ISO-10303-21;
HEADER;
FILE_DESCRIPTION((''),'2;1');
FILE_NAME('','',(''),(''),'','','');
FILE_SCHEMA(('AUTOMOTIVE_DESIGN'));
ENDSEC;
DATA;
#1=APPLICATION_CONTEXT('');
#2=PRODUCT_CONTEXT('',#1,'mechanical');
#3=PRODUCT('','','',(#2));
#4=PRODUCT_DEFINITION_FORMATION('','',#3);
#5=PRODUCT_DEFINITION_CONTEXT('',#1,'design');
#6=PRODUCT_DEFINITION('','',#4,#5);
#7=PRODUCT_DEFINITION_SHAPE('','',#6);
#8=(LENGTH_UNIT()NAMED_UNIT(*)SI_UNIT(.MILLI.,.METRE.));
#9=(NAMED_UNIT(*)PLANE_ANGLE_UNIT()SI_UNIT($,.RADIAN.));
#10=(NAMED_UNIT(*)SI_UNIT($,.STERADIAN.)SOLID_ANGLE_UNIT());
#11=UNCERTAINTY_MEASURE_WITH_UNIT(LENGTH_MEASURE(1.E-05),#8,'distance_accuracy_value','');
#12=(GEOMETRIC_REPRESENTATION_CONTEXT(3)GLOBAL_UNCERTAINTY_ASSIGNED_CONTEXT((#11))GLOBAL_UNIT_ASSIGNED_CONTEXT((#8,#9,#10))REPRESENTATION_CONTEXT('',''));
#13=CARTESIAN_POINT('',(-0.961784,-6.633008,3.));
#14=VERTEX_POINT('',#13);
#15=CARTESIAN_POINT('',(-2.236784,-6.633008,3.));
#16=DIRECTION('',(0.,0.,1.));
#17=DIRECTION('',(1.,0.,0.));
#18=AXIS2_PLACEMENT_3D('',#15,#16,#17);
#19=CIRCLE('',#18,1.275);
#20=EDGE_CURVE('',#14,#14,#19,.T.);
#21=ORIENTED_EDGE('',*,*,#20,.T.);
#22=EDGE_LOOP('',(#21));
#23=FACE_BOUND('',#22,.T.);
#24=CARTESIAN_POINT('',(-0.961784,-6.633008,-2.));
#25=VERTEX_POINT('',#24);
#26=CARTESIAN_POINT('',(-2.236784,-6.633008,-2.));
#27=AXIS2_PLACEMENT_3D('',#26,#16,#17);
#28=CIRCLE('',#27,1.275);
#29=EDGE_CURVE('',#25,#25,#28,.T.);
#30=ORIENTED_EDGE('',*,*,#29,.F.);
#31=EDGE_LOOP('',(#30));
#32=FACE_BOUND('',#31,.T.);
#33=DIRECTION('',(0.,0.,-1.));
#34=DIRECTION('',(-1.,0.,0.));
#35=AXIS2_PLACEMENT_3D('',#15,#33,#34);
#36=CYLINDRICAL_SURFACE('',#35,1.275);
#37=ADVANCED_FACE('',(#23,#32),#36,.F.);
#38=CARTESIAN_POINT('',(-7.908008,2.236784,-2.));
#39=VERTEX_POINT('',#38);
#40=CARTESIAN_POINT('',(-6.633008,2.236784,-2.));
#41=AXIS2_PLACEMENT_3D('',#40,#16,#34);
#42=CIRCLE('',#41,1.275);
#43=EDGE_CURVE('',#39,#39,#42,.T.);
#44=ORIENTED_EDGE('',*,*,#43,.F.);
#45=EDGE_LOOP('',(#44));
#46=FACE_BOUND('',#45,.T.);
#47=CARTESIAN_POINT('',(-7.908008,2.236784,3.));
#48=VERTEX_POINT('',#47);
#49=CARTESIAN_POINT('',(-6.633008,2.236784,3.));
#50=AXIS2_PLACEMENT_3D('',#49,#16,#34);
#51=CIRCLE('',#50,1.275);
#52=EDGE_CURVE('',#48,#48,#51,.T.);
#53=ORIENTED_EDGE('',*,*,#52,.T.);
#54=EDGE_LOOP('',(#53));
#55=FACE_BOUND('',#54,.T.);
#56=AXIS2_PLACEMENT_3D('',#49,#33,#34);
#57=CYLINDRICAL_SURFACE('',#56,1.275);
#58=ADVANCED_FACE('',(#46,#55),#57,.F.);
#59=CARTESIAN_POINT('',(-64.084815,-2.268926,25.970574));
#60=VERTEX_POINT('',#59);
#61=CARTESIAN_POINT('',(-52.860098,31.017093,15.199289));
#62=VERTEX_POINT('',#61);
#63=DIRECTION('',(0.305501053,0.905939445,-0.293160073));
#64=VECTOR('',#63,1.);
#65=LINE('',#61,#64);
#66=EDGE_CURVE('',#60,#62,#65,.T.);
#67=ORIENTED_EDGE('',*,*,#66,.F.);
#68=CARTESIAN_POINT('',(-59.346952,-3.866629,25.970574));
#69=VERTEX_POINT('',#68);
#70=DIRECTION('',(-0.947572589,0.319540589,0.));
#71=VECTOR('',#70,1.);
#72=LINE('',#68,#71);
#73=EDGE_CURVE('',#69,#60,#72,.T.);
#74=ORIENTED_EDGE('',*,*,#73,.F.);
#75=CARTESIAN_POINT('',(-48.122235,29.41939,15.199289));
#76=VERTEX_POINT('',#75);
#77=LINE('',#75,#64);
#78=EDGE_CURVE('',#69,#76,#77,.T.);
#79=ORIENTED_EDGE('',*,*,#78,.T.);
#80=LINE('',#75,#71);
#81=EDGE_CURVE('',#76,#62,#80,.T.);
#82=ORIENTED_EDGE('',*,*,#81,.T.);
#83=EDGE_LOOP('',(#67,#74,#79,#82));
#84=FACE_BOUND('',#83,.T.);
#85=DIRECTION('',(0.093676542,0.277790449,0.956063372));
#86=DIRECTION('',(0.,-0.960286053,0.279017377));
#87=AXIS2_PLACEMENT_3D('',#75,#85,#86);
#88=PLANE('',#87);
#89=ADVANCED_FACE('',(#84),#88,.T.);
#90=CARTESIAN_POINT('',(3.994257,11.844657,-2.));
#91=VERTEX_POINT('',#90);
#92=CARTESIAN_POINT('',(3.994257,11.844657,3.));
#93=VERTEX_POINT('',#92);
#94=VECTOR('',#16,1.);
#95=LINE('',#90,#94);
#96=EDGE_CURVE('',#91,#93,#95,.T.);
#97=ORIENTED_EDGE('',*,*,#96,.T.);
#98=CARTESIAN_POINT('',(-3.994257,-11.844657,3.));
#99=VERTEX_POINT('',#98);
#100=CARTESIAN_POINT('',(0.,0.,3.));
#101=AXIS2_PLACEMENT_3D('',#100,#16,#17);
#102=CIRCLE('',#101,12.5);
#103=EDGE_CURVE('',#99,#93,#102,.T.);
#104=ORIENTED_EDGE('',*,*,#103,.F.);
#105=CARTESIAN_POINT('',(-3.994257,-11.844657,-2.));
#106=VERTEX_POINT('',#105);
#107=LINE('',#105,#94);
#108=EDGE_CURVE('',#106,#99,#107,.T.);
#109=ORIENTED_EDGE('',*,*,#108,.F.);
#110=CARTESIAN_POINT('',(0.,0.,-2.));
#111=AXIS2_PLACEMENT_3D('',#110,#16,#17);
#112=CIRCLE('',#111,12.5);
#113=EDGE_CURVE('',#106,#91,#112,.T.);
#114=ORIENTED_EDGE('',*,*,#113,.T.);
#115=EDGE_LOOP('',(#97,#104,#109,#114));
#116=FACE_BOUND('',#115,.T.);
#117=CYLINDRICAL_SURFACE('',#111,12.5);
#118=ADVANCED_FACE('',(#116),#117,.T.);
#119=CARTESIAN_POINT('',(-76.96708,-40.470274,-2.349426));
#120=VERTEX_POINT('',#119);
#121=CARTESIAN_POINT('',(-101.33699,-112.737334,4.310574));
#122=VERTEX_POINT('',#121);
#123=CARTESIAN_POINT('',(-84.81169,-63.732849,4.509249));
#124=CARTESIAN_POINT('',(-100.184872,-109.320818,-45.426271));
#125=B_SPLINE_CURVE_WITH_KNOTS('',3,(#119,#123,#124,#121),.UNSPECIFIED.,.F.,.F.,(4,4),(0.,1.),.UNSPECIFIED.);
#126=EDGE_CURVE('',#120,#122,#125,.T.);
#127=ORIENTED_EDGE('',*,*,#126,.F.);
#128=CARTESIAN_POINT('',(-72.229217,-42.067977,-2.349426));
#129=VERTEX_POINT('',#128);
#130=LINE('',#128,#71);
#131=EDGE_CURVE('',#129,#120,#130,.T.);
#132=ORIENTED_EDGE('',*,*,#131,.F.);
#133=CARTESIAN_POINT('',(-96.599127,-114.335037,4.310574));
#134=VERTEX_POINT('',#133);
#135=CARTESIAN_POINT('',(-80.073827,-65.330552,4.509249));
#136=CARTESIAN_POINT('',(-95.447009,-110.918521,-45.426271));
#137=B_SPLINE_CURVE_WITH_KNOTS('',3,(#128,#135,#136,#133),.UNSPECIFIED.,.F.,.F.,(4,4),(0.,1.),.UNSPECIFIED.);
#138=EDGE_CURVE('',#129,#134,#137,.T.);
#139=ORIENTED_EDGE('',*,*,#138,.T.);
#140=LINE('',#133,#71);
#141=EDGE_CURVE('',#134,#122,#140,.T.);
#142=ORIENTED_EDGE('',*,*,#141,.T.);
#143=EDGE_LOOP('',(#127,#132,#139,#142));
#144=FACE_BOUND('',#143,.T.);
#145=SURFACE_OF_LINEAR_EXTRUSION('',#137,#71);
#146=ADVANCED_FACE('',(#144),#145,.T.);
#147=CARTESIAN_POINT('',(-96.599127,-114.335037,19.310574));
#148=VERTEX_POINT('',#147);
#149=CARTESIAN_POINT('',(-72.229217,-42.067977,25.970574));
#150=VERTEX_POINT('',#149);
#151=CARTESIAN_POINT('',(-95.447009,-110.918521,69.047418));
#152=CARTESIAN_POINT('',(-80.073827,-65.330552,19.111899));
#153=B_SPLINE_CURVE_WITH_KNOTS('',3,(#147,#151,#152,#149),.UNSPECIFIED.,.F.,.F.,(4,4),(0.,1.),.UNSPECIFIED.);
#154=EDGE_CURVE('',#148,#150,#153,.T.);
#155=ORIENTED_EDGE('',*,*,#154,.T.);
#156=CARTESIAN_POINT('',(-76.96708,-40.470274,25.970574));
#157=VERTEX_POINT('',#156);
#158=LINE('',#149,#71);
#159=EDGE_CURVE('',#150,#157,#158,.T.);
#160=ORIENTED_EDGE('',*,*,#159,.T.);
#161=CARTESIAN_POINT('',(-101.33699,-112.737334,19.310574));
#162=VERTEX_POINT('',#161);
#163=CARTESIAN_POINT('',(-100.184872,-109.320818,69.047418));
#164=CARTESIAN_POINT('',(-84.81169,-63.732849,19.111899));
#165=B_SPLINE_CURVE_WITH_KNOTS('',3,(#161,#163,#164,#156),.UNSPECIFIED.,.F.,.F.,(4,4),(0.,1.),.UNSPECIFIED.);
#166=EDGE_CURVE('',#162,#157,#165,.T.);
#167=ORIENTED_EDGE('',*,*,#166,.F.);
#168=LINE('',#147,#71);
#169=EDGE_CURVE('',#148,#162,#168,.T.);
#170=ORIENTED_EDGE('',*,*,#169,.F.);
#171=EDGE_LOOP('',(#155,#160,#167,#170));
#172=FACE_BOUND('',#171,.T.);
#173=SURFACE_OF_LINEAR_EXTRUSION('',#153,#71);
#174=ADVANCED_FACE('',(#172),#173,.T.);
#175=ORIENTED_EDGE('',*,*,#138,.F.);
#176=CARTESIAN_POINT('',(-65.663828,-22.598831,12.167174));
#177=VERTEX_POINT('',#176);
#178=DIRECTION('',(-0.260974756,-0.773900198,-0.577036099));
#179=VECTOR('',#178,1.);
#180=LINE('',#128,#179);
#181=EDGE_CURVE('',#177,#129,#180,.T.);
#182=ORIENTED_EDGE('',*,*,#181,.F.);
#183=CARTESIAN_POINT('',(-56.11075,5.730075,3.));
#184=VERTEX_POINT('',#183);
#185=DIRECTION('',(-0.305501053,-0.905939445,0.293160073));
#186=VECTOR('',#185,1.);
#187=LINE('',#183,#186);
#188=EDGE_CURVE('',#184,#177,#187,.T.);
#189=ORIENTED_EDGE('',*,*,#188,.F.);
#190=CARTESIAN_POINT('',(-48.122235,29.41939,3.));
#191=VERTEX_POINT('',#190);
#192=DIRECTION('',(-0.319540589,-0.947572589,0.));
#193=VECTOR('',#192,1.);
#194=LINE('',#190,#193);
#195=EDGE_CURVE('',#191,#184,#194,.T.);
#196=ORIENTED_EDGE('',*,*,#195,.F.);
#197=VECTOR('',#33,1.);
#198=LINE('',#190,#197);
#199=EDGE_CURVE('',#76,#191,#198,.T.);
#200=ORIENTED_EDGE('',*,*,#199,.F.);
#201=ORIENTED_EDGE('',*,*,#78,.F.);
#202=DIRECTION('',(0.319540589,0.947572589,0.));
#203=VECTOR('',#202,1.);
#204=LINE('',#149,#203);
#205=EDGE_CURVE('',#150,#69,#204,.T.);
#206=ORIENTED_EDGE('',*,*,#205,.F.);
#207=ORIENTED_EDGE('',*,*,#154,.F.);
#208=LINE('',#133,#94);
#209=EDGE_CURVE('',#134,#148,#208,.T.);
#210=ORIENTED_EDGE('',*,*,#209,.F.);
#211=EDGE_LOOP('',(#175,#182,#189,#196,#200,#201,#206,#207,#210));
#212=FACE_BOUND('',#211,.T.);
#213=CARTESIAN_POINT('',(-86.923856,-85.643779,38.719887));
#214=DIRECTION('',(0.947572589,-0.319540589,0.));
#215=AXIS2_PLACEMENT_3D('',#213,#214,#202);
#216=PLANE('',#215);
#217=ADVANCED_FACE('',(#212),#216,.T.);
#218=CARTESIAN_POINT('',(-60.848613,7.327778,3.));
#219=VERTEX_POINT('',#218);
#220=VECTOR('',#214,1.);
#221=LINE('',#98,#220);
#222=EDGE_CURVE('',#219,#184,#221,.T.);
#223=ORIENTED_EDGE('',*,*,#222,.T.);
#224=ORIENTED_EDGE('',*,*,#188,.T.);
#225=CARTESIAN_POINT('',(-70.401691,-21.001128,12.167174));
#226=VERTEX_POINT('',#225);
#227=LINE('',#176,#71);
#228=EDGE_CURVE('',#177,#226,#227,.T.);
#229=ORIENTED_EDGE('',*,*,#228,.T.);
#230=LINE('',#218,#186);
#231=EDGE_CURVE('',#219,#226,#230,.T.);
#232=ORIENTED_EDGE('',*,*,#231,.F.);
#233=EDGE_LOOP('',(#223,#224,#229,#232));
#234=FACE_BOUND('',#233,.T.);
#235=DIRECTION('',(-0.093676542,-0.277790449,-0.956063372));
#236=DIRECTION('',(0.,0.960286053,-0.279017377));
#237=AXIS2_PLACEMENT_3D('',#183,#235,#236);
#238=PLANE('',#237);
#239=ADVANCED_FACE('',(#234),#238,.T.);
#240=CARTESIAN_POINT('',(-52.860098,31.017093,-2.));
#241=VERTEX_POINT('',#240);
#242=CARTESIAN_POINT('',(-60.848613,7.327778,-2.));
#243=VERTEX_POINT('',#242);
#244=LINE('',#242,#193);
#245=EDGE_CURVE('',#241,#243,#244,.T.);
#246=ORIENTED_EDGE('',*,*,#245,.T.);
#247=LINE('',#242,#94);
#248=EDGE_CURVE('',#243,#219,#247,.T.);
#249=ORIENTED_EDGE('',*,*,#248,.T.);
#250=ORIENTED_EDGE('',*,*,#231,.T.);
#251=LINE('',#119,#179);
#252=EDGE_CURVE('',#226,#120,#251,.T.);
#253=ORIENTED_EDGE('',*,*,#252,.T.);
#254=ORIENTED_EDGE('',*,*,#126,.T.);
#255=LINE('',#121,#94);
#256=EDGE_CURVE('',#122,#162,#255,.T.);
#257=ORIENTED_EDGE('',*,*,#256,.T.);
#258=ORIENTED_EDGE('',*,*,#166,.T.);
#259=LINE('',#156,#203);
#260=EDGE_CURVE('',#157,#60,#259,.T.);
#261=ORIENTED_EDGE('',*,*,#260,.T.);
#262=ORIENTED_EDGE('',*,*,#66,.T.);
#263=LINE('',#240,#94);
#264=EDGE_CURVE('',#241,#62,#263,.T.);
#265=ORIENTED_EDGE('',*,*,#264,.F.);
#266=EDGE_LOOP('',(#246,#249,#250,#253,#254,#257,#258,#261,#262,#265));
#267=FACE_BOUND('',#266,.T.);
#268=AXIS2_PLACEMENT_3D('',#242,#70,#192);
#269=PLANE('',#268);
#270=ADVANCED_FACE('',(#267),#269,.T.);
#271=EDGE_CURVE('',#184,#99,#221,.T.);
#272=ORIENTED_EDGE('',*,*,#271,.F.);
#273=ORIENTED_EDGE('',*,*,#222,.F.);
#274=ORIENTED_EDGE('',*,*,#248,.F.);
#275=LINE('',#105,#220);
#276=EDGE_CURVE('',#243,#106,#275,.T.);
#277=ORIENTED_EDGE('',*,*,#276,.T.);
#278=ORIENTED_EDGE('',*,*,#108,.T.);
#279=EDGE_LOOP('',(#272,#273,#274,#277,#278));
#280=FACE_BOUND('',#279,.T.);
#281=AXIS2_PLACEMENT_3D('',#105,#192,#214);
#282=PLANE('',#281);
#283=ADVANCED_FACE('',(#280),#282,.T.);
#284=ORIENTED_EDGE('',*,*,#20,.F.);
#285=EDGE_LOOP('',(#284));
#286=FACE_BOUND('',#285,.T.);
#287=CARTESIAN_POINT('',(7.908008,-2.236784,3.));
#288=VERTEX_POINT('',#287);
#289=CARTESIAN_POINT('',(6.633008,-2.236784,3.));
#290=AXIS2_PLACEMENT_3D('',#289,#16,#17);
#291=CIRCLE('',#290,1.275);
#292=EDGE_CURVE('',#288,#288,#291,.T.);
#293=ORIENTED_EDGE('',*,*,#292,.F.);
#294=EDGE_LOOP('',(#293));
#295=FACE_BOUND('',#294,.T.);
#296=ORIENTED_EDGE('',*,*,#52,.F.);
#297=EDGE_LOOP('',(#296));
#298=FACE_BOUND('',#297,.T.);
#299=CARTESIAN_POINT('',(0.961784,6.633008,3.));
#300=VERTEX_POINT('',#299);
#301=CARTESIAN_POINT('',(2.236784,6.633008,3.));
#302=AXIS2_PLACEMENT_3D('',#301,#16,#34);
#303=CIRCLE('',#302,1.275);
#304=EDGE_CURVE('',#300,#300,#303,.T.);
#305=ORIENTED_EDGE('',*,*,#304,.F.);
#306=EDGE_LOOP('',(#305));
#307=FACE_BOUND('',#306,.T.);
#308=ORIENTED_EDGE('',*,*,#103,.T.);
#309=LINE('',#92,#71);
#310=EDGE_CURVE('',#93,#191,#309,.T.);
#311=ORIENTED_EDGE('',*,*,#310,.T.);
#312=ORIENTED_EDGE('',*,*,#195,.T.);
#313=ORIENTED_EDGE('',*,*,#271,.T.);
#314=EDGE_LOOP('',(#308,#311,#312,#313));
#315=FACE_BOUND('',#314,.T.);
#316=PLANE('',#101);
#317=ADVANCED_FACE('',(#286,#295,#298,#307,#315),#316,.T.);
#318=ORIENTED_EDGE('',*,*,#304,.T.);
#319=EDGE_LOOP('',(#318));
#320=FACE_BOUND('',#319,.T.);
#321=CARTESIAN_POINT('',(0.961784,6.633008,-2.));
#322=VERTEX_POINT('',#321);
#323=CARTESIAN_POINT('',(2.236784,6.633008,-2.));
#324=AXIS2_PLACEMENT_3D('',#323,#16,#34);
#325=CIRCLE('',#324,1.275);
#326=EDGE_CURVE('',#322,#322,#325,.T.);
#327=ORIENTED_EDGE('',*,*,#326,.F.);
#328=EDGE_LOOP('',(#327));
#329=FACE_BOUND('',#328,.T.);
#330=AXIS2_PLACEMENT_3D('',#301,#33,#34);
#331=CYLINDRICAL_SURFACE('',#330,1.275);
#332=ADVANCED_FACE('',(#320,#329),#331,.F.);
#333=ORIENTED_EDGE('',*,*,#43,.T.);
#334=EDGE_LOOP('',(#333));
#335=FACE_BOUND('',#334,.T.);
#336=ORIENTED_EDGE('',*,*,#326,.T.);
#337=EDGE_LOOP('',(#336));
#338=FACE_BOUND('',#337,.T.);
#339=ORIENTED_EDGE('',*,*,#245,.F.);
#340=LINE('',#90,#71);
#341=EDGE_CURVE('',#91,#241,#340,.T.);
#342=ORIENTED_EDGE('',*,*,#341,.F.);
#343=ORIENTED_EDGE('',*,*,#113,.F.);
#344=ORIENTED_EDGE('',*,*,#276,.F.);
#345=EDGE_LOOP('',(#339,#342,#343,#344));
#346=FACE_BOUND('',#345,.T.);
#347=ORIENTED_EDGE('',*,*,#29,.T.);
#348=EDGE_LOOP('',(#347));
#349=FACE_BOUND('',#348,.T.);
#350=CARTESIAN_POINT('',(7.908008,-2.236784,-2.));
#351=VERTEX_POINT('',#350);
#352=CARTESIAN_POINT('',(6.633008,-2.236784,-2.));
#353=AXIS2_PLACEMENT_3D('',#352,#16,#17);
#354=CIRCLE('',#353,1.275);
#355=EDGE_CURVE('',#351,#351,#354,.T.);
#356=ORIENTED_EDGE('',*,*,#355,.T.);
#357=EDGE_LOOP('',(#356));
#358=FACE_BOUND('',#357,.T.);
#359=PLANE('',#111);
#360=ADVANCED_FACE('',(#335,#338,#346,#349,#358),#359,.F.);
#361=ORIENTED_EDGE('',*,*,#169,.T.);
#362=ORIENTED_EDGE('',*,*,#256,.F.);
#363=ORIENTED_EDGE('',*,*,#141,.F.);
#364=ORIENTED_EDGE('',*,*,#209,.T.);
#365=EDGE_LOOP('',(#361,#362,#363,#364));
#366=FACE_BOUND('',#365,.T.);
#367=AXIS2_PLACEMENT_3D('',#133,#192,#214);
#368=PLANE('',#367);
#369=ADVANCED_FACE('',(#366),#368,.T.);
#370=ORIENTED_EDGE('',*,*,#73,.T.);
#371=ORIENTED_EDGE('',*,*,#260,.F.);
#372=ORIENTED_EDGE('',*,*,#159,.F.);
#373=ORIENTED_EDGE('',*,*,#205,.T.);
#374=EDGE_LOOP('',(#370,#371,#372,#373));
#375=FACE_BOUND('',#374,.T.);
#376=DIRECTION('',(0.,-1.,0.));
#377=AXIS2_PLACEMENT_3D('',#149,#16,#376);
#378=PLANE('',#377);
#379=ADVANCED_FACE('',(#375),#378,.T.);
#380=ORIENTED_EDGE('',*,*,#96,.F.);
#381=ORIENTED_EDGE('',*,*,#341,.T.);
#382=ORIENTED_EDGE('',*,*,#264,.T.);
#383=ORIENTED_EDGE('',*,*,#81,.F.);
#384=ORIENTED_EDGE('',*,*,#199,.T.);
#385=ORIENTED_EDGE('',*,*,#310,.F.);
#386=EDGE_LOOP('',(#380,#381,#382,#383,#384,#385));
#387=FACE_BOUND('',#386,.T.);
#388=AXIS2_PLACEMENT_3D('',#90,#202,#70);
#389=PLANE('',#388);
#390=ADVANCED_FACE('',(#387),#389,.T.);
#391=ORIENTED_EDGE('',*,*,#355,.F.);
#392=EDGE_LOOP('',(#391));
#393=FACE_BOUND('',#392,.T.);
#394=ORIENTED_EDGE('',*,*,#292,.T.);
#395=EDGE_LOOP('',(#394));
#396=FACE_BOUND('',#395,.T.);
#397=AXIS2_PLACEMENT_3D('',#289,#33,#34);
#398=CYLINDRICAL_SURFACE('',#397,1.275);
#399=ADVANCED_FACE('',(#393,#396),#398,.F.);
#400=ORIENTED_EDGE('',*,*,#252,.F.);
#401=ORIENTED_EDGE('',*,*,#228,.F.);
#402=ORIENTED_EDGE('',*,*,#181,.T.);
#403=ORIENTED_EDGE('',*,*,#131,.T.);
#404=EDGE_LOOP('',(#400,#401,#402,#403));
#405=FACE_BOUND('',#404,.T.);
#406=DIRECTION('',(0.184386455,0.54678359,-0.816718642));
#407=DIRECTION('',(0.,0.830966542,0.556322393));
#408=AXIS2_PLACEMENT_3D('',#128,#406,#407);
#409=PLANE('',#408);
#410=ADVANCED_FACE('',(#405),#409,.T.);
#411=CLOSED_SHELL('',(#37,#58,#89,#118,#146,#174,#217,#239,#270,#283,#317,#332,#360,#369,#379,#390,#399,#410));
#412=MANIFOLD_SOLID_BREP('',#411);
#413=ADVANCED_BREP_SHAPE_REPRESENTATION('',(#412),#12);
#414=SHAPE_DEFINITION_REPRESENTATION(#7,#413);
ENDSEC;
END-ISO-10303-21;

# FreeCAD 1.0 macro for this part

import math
import FreeCAD as App
import Part
import Sketcher

V = App.Vector
Q = App.Units.Quantity

doc = App.newDocument("Part")
body = doc.addObject("PartDesign::Body", "Body")

# Sketch on XY plane
sketch1 = body.newObject("Sketcher::SketchObject", "Sketch")
sketch1.AttachmentSupport = (doc.getObject("XY_Plane"), [""])
sketch1.MapMode = "FlatFace"
sketch1.addGeometry([
    Part.Circle(V(0, 0, 0), V(0, 0, 1), 10),  # 0
    Part.Circle(V(-2.236784, -6.633008, 0), V(0, 0, 1), 1.275),  # 1
    Part.Circle(V(6.633008, -2.236784, 0), V(0, 0, 1), 1.275),  # 2
    Part.Circle(V(-6.633008, 2.236784, 0), V(0, 0, 1), 1.275),  # 3
    Part.Circle(V(2.236784, 6.633008, 0), V(0, 0, 1), 1.275),  # 4
], False)
sketch1.addConstraint([
    Sketcher.Constraint("Coincident", 0, 3, -1, 1),
    Sketcher.Constraint("Equal", 1, 2),
    Sketcher.Constraint("Equal", 2, 3),
    Sketcher.Constraint("Equal", 3, 4),
    Sketcher.Constraint("Symmetric", 2, 3, 3, 3, -1, 1),
    Sketcher.Constraint("Symmetric", 1, 3, 4, 3, -1, 1),
    Sketcher.Constraint("Diameter", 0, Q("20 mm")),
    Sketcher.Constraint("Diameter", 1, Q("2.55 mm")),
    Sketcher.Constraint("DistanceY", 1, 3, -1, 1, Q("6.633008 mm")),
    Sketcher.Constraint("DistanceX", -1, 1, 2, 3, Q("6.633008 mm")),
    Sketcher.Constraint("DistanceY", 2, 3, 3, 3, Q("4.473568 mm")),
    Sketcher.Constraint("DistanceX", 1, 3, 4, 3, Q("4.473568 mm")),
])
pad1 = body.newObject("PartDesign::Pad", "Pad")
pad1.Profile = sketch1
pad1.Length = 3

# Sketch on XY plane
sketch2 = body.newObject("Sketcher::SketchObject", "Sketch001")
sketch2.AttachmentSupport = (doc.getObject("XY_Plane"), [""])
sketch2.MapMode = "FlatFace"
sketch2.AttachmentOffset = App.Placement(V(0, 0, 3), App.Rotation())
sketch2.addGeometry([
    Part.LineSegment(V(-60.848613, 7.327778, 0), V(-3.994257, -11.844657, 0)),  # 0
    Part.ArcOfCircle(Part.Circle(V(0, 0, 0), V(0, 0, 1), 12.5), math.radians(-108.635144), math.radians(71.364856)),  # 1
    Part.LineSegment(V(3.994257, 11.844657, 0), V(-52.860098, 31.017093, 0)),  # 2
    Part.LineSegment(V(-52.860098, 31.017093, 0), V(-60.848613, 7.327778, 0)),  # 3
    Part.Circle(V(6.633008, -2.236784, 0), V(0, 0, 1), 1.275),  # 4
    Part.Circle(V(-2.236784, -6.633008, 0), V(0, 0, 1), 1.275),  # 5
    Part.Circle(V(2.236784, 6.633008, 0), V(0, 0, 1), 1.275),  # 6
    Part.Circle(V(-6.633008, 2.236784, 0), V(0, 0, 1), 1.275),  # 7
], False)
sketch2.addConstraint([
    Sketcher.Constraint("Tangent", 0, 2, 1, 1),
    Sketcher.Constraint("Tangent", 1, 2, 2, 1),
    Sketcher.Constraint("Coincident", 2, 2, 3, 1),
    Sketcher.Constraint("Coincident", 3, 2, 0, 1),
    Sketcher.Constraint("Coincident", 1, 3, -1, 1),
    Sketcher.Constraint("Equal", 4, 5),
    Sketcher.Constraint("Equal", 5, 6),
    Sketcher.Constraint("Equal", 6, 7),
    Sketcher.Constraint("Symmetric", 5, 3, 6, 3, -1, 1),
    Sketcher.Constraint("Symmetric", 4, 3, 7, 3, -1, 1),
    Sketcher.Constraint("Parallel", 0, 2),
    Sketcher.Constraint("Perpendicular", 2, 3),
    Sketcher.Constraint("Radius", 1, Q("12.5 mm")),
    Sketcher.Constraint("Diameter", 4, Q("2.55 mm")),
    Sketcher.Constraint("Distance", 0, Q("60 mm")),
    Sketcher.Constraint("DistanceY", 5, 3, 2, 2, Q("37.650101 mm")),
    Sketcher.Constraint("DistanceX", -1, 1, 4, 3, Q("6.633008 mm")),
    Sketcher.Constraint("DistanceY", 5, 3, -1, 1, Q("6.633008 mm")),
    Sketcher.Constraint("DistanceX", 5, 3, 6, 3, Q("4.473568 mm")),
    Sketcher.Constraint("DistanceY", 4, 3, 7, 3, Q("4.473568 mm")),
])
pad2 = body.newObject("PartDesign::Pad", "Pad001")
pad2.Profile = sketch2
pad2.Length = 5
pad2.Reversed = True

# Sketch on an angled plane
sketch3 = body.newObject("Sketcher::SketchObject", "Sketch002")
sketch3.Placement = App.Placement(V(-56.854355, 19.172435, 0), App.Rotation(V(0.319540589, 0.947572589, 0), V(0, 0, -0.999999999), V(-0.947572589, 0.319540589, 0), "ZXY"))
sketch3.addGeometry([
    Part.LineSegment(V(-62.942628, -25.970574, 0), V(-22.627672, -25.970574, 0)),  # 0
    Part.LineSegment(V(-22.627672, -25.970574, 0), V(12.5, -15.199289, 0)),  # 1
    Part.LineSegment(V(12.5, -15.199289, 0), V(12.5, -3, 0)),  # 2
    Part.LineSegment(V(12.5, -3, 0), V(-12.5, -3, 0)),  # 3
    Part.LineSegment(V(-12.5, -3, 0), V(-42.396291, -12.167174, 0)),  # 4
    Part.LineSegment(V(-42.396291, -12.167174, 0), V(-62.942628, 2.349426, 0)),  # 5
    Part.BSplineCurve([V(-62.942628, 2.349426, 0), V(-87.492278, -4.509249, 0), V(-135.602544, 45.426271, 0), V(-139.208089, -4.310574, 0)], [4, 4], [0, 1], False, 3, [1, 1, 1, 1], False),  # 6
    Part.LineSegment(V(-139.208089, -4.310574, 0), V(-139.208089, -19.310574, 0)),  # 7
    Part.BSplineCurve([V(-62.942628, -25.970574, 0), V(-87.492278, -19.111899, 0), V(-135.602544, -69.047418, 0), V(-139.208089, -19.310574, 0)], [4, 4], [0, 1], False, 3, [1, 1, 1, 1], False),  # 8
], False)
sketch3.addConstraint([
    Sketcher.Constraint("Block", 6),
    Sketcher.Constraint("Block", 8),
    Sketcher.Constraint("Coincident", 0, 2, 1, 1),
    Sketcher.Constraint("Coincident", 1, 2, 2, 1),
    Sketcher.Constraint("Coincident", 2, 2, 3, 1),
    Sketcher.Constraint("Coincident", 3, 2, 4, 1),
    Sketcher.Constraint("Coincident", 4, 2, 5, 1),
    Sketcher.Constraint("Coincident", 5, 2, 6, 1),
    Sketcher.Constraint("Coincident", 6, 2, 7, 1),
    Sketcher.Constraint("Coincident", 7, 2, 8, 2),
    Sketcher.Constraint("Coincident", 8, 1, 0, 1),
    Sketcher.Constraint("Horizontal", 0),
    Sketcher.Constraint("Vertical", 2),
    Sketcher.Constraint("Horizontal", 3),
    Sketcher.Constraint("Parallel", 1, 4),
    Sketcher.Constraint("DistanceX", 3, 2, 3, 1, Q("25 mm")),
    Sketcher.Constraint("DistanceY", 2, 2, -1, 1, Q("3 mm")),
    Sketcher.Constraint("DistanceX", -1, 1, 1, 2, Q("12.5 mm")),
    Sketcher.Constraint("Distance", 4, Q("31.270199 mm")),
    Sketcher.Constraint("DistanceY", 2, 1, 2, 2, Q("12.199289 mm")),
    Sketcher.Constraint("DistanceY", 0, 2, 4, 2, Q("13.8034 mm")),
])
pad3 = body.newObject("PartDesign::Pad", "Pad002")
pad3.Profile = sketch3
pad3.Length = 5
pad3.Reversed = True

doc.recompute()
